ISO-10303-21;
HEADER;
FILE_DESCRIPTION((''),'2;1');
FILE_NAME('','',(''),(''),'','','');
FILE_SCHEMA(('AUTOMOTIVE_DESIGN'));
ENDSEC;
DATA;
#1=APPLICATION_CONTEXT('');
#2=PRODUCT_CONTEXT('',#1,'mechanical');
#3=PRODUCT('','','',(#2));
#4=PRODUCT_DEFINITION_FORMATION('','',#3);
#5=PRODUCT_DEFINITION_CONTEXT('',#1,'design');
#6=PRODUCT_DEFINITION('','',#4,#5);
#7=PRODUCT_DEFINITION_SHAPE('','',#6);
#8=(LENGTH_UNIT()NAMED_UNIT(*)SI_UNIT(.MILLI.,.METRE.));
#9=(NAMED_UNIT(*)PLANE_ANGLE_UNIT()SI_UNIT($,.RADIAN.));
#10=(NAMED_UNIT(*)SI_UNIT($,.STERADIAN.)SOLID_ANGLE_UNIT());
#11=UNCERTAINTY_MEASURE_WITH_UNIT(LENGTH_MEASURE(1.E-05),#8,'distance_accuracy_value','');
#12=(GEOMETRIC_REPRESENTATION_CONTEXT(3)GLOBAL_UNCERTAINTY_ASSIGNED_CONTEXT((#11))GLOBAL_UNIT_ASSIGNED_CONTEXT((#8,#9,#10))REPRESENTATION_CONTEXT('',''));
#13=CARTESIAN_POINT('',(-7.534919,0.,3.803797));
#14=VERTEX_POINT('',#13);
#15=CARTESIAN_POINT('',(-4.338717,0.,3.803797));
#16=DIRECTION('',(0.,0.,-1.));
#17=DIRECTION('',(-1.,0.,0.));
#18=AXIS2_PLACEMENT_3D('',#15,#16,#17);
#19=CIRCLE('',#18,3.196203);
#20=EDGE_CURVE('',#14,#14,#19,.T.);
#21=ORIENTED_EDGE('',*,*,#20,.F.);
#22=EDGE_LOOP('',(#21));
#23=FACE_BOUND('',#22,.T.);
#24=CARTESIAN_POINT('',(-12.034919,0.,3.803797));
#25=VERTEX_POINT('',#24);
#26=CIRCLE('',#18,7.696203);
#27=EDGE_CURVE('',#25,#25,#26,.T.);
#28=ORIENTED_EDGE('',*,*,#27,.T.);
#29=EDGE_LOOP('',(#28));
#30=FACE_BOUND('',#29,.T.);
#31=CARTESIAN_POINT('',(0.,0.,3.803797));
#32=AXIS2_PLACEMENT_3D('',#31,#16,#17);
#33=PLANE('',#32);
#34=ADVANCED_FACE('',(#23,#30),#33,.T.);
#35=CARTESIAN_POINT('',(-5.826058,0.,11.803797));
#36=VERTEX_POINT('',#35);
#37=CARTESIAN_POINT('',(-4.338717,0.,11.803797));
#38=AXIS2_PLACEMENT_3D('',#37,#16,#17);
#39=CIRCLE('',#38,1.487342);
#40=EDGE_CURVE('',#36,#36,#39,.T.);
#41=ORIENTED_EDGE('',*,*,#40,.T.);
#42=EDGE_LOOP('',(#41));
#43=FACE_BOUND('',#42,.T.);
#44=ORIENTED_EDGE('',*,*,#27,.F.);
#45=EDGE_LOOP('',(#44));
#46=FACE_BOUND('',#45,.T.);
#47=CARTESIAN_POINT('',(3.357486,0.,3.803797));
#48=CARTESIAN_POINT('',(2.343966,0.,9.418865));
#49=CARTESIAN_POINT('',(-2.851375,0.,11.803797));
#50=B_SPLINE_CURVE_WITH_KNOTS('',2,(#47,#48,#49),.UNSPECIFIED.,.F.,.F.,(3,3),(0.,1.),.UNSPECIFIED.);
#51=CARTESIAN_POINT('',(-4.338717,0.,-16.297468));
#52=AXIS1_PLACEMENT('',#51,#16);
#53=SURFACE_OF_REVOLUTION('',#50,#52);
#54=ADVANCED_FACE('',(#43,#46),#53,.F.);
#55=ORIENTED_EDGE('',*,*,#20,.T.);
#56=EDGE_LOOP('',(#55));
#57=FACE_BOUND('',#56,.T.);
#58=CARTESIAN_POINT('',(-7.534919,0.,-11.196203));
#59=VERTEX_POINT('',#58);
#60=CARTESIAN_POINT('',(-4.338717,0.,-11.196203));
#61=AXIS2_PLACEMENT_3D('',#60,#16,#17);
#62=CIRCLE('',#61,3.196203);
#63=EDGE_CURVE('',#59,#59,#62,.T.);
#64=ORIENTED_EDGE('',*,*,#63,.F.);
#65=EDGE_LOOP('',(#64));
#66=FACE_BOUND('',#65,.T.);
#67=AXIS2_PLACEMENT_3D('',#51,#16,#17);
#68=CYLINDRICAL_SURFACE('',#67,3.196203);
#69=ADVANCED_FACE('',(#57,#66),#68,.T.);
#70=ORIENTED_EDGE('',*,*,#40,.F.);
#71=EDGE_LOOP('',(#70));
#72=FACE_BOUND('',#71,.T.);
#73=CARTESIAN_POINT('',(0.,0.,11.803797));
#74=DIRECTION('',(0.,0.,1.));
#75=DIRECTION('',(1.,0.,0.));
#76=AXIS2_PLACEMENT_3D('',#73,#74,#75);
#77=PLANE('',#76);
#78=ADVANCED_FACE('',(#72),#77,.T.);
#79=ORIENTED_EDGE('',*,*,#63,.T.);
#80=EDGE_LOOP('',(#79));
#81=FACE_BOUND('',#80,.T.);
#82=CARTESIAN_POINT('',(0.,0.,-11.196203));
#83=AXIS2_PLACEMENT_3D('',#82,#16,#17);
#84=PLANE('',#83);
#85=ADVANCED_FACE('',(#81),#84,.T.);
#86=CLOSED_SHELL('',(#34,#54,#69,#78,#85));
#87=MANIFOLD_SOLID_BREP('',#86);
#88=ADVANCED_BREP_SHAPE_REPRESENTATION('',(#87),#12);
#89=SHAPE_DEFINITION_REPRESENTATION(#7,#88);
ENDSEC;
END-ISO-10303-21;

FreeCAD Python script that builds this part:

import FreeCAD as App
import Part
import Sketcher

doc = App.newDocument("Part")
params = doc.addObject("Spreadsheet::Sheet", "Params")
for row, (alias, value) in enumerate([
    ("sketch1_height", "15 mm"),
    ("sketch1_width", "4.5 mm"),
    ("revolution_angle", "360 deg"),
], start=1):
    params.set(f"A{row}", alias)
    params.set(f"B{row}", "=" + value)
    params.setAlias(f"B{row}", alias)

body = doc.addObject("PartDesign::Body", "Body")

# Sketch on XZ plane
sketch1 = doc.addObject("Sketcher::SketchObject", "Sketch")
body.addObject(sketch1)
sketch1.AttachmentSupport = (doc.XZ_Plane, [""])
sketch1.MapMode = "FlatFace"
sketch1.addGeometry([
    Part.LineSegment(App.Vector(-1.142514, 3.803797, 0), App.Vector(-1.142514, -11.196203, 0)),  # 0
    Part.LineSegment(App.Vector(-1.142514, -11.196203, 0), App.Vector(-4.338717, -11.196203, 0)),  # 1
    Part.LineSegment(App.Vector(-4.338717, -11.196203, 0), App.Vector(-4.338717, 11.803797, 0)),  # 2
    Part.LineSegment(App.Vector(-4.338717, 11.803797, 0), App.Vector(-2.851375, 11.803797, 0)),  # 3
    Part.BSplineCurve([App.Vector(3.357486, 3.803797, 0), App.Vector(2.343966, 9.418865, 0), App.Vector(-2.851375, 11.803797, 0)], [3, 3], [0, 1], False, 2, [1, 1, 1], False),  # 4
    Part.LineSegment(App.Vector(3.357486, 3.803797, 0), App.Vector(-1.142514, 3.803797, 0)),  # 5
], False)
sketch1.addGeometry(Part.LineSegment(App.Vector(-4.338717, -11.196203, 0), App.Vector(-4.338717, 11.803797, 0)), True)  # axis
sketch1.addConstraint([
    Sketcher.Constraint("Block", 4),
    Sketcher.Constraint("Coincident", 0, 2, 1, 1),
    Sketcher.Constraint("Coincident", 1, 2, 2, 1),
    Sketcher.Constraint("Coincident", 2, 2, 3, 1),
    Sketcher.Constraint("Coincident", 3, 2, 4, 2),
    Sketcher.Constraint("Coincident", 4, 1, 5, 1),
    Sketcher.Constraint("Coincident", 5, 2, 0, 1),
    Sketcher.Constraint("Vertical", 0),
    Sketcher.Constraint("Horizontal", 1),
    Sketcher.Constraint("Vertical", 2),
    Sketcher.Constraint("Horizontal", 3),
    Sketcher.Constraint("Horizontal", 5),
    Sketcher.Constraint("Vertical", 6),
    Sketcher.Constraint("Coincident", 6, 1, 1, 2),
    Sketcher.Constraint("Horizontal", 3, 2, 6, 2),
    Sketcher.Constraint("DistanceY", 0, 2, 0, 1, 15.0),
    Sketcher.Constraint("DistanceX", 5, 2, 5, 1, 4.5),
    Sketcher.Constraint("DistanceX", 3, 1, 3, 2, 1.487342),
])
sketch1.setExpression("Constraints[15]", "Params.sketch1_height")
sketch1.setExpression("Constraints[16]", "Params.sketch1_width")
revolution = doc.addObject("PartDesign::Revolution", "Revolution")
body.addObject(revolution)
revolution.Profile = sketch1
revolution.ReferenceAxis = (sketch1, ["Axis0"])
revolution.setExpression("Angle", "Params.revolution_angle")

doc.recompute()
